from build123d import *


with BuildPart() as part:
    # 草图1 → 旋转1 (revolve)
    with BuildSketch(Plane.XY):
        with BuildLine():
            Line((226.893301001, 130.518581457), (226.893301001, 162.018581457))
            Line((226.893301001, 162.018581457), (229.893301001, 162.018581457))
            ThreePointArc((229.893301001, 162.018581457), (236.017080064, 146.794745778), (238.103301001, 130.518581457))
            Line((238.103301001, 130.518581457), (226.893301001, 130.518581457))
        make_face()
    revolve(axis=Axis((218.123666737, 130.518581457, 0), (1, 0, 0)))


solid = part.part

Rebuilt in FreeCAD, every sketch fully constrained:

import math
import FreeCAD as App
import Part
import Sketcher
from FreeCAD import Vector
Q = App.Units.Quantity

doc = App.newDocument("Part")
body = doc.addObject("PartDesign::Body", "Body")

# Sketch on XY plane
sketch1 = body.newObject("Sketcher::SketchObject", "Sketch")
sketch1.AttachmentSupport = (doc.getObject("XY_Plane"), [""])
sketch1.MapMode = "FlatFace"
sketch1.addGeometry([
    Part.LineSegment(Vector(226.893301, 162.018581, 0), Vector(226.893301, 130.518581, 0)),
    Part.LineSegment(Vector(226.893301, 130.518581, 0), Vector(238.103301, 130.518581, 0)),
    Part.ArcOfCircle(Part.Circle(Vector(173.568947, 130.518581, 0), Vector(0, 0, 1), 64.534354), math.radians(0), math.radians(29.216571)),
    Part.LineSegment(Vector(229.893301, 162.018581, 0), Vector(226.893301, 162.018581, 0)),
], False)
sketch1.addGeometry(Part.LineSegment(Vector(173.568947, 130.518581, 0), Vector(238.103301, 130.518581, 0)), True)  # axis
sketch1.addConstraint([
    Sketcher.Constraint("Coincident", 0, 2, 1, 1),
    Sketcher.Constraint("Coincident", 1, 2, 2, 1),
    Sketcher.Constraint("Coincident", 2, 2, 3, 1),
    Sketcher.Constraint("Coincident", 3, 2, 0, 1),
    Sketcher.Constraint("Vertical", 0),
    Sketcher.Constraint("Horizontal", 1),
    Sketcher.Constraint("Horizontal", 3),
    Sketcher.Constraint("Horizontal", 4),
    Sketcher.Constraint("Coincident", 4, 1, 2, 3),
    Sketcher.Constraint("Coincident", 4, 2, 1, 2),
    Sketcher.Constraint("DistanceX", 3, 2, 3, 1, Q("3 mm")),
    Sketcher.Constraint("DistanceY", 0, 2, 0, 1, Q("31.5 mm")),
    Sketcher.Constraint("DistanceX", 1, 1, 1, 2, Q("11.21 mm")),
    Sketcher.Constraint("DistanceX", -1, 1, 0, 2, Q("226.893301 mm")),
    Sketcher.Constraint("DistanceY", -1, 1, 2, 3, Q("130.518581 mm")),
])
revolution = body.newObject("PartDesign::Revolution", "Revolution")
revolution.Profile = sketch1
revolution.ReferenceAxis = (sketch1, ["Axis0"])
revolution.Angle = 360

doc.recompute()
